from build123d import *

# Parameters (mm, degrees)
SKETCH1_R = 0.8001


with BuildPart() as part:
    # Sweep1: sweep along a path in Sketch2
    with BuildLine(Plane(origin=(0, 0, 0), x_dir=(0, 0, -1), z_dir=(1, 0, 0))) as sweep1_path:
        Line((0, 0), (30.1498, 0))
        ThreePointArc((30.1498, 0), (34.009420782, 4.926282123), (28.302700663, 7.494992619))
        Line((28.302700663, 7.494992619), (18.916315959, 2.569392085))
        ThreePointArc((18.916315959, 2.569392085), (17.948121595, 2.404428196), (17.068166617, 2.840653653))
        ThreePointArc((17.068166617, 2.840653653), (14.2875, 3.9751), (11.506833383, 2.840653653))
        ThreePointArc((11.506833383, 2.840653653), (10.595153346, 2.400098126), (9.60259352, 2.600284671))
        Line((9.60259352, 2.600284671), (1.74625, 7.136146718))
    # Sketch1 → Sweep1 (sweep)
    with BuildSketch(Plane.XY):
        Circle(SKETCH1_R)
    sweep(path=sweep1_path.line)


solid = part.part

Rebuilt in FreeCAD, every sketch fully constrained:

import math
import FreeCAD as App
import Part
import Sketcher
Q = App.Units.Quantity

doc = App.newDocument("Part")
body = doc.addObject("PartDesign::Body", "Body")

sketch1 = body.newObject("Sketcher::SketchObject", "Sketch")
sketch1.AttachmentSupport = (doc.getObject("XY_Plane"), [""])
sketch1.MapMode = "FlatFace"
sketch1.addGeometry(Part.Circle(App.Vector(0, 0, 0), App.Vector(0, 0, 1), 0.8), False)
sketch1.addConstraint([
    Sketcher.Constraint("Coincident", 0, 3, -1, 1),
    Sketcher.Constraint("Diameter", 0, Q("0.063 in")),
])

sketch2 = body.newObject("Sketcher::SketchObject", "Sketch001")
sketch2.AttachmentSupport = (doc.getObject("YZ_Plane"), [""])
sketch2.MapMode = "FlatFace"
sketch2.addGeometry([
    Part.LineSegment(App.Vector(0, 0, 0), App.Vector(0, -30.1, 0)),
    Part.ArcOfCircle(Part.Circle(App.Vector(4, -30.1, 0), App.Vector(0, 0, 1), 4), math.radians(180), math.radians(388)),
    Part.LineSegment(App.Vector(7.5, -28.3, 0), App.Vector(2.6, -18.9, 0)),
    Part.ArcOfCircle(Part.Circle(App.Vector(4, -18.2, 0), App.Vector(0, 0, 1), 1.6), math.radians(136), math.radians(208)),
    Part.ArcOfCircle(Part.Circle(App.Vector(0, -14.3, 0), App.Vector(0, 0, 1), 4), math.radians(-44), math.radians(44)),
    Part.ArcOfCircle(Part.Circle(App.Vector(4, -10.4, 0), App.Vector(0, 0, 1), 1.6), math.radians(150), math.radians(224)),
    Part.LineSegment(App.Vector(2.6, -9.6, 0), App.Vector(7.1, -1.7, 0)),
], False)
sketch2.addConstraint([
    Sketcher.Constraint("Tangent", 0, 2, 1, 1),
    Sketcher.Constraint("Tangent", 1, 2, 2, 1),
    Sketcher.Constraint("Tangent", 2, 2, 3, 2),
    Sketcher.Constraint("Tangent", 3, 1, 4, 1),
    Sketcher.Constraint("Tangent", 4, 2, 5, 2),
    Sketcher.Constraint("Tangent", 5, 1, 6, 1),
    Sketcher.Constraint("Vertical", 0),
    Sketcher.Constraint("Coincident", 0, 1, -1, 1),
    Sketcher.Constraint("Equal", 1, 4),
    Sketcher.Constraint("Equal", 3, 5),
    Sketcher.Constraint("PointOnObject", 4, 3, -2),
    Sketcher.Constraint("Vertical", 1, 3, 3, 3),
    Sketcher.Constraint("Vertical", 3, 3, 5, 3),
    Sketcher.Constraint("Angle", 6, Q("60 deg")),
    Sketcher.Constraint("Radius", 3, Q("0.0625 in")),
    Sketcher.Constraint("Radius", 1, Q("0.1565 in")),
    Sketcher.Constraint("DistanceY", 0, 2, 0, 1, Q("1.187 in")),
    Sketcher.Constraint("DistanceY", 4, 3, -1, 1, Q("0.5625 in")),
    Sketcher.Constraint("DistanceY", 6, 2, -1, 1, 1.74625),
])
doc.recompute()

additivepipe = body.newObject("PartDesign::AdditivePipe", "AdditivePipe")
additivepipe.Profile = sketch1
additivepipe.Spine = (sketch2, ["Edge1", "Edge2", "Edge3", "Edge4", "Edge5", "Edge6", "Edge7"])

doc.recompute()
